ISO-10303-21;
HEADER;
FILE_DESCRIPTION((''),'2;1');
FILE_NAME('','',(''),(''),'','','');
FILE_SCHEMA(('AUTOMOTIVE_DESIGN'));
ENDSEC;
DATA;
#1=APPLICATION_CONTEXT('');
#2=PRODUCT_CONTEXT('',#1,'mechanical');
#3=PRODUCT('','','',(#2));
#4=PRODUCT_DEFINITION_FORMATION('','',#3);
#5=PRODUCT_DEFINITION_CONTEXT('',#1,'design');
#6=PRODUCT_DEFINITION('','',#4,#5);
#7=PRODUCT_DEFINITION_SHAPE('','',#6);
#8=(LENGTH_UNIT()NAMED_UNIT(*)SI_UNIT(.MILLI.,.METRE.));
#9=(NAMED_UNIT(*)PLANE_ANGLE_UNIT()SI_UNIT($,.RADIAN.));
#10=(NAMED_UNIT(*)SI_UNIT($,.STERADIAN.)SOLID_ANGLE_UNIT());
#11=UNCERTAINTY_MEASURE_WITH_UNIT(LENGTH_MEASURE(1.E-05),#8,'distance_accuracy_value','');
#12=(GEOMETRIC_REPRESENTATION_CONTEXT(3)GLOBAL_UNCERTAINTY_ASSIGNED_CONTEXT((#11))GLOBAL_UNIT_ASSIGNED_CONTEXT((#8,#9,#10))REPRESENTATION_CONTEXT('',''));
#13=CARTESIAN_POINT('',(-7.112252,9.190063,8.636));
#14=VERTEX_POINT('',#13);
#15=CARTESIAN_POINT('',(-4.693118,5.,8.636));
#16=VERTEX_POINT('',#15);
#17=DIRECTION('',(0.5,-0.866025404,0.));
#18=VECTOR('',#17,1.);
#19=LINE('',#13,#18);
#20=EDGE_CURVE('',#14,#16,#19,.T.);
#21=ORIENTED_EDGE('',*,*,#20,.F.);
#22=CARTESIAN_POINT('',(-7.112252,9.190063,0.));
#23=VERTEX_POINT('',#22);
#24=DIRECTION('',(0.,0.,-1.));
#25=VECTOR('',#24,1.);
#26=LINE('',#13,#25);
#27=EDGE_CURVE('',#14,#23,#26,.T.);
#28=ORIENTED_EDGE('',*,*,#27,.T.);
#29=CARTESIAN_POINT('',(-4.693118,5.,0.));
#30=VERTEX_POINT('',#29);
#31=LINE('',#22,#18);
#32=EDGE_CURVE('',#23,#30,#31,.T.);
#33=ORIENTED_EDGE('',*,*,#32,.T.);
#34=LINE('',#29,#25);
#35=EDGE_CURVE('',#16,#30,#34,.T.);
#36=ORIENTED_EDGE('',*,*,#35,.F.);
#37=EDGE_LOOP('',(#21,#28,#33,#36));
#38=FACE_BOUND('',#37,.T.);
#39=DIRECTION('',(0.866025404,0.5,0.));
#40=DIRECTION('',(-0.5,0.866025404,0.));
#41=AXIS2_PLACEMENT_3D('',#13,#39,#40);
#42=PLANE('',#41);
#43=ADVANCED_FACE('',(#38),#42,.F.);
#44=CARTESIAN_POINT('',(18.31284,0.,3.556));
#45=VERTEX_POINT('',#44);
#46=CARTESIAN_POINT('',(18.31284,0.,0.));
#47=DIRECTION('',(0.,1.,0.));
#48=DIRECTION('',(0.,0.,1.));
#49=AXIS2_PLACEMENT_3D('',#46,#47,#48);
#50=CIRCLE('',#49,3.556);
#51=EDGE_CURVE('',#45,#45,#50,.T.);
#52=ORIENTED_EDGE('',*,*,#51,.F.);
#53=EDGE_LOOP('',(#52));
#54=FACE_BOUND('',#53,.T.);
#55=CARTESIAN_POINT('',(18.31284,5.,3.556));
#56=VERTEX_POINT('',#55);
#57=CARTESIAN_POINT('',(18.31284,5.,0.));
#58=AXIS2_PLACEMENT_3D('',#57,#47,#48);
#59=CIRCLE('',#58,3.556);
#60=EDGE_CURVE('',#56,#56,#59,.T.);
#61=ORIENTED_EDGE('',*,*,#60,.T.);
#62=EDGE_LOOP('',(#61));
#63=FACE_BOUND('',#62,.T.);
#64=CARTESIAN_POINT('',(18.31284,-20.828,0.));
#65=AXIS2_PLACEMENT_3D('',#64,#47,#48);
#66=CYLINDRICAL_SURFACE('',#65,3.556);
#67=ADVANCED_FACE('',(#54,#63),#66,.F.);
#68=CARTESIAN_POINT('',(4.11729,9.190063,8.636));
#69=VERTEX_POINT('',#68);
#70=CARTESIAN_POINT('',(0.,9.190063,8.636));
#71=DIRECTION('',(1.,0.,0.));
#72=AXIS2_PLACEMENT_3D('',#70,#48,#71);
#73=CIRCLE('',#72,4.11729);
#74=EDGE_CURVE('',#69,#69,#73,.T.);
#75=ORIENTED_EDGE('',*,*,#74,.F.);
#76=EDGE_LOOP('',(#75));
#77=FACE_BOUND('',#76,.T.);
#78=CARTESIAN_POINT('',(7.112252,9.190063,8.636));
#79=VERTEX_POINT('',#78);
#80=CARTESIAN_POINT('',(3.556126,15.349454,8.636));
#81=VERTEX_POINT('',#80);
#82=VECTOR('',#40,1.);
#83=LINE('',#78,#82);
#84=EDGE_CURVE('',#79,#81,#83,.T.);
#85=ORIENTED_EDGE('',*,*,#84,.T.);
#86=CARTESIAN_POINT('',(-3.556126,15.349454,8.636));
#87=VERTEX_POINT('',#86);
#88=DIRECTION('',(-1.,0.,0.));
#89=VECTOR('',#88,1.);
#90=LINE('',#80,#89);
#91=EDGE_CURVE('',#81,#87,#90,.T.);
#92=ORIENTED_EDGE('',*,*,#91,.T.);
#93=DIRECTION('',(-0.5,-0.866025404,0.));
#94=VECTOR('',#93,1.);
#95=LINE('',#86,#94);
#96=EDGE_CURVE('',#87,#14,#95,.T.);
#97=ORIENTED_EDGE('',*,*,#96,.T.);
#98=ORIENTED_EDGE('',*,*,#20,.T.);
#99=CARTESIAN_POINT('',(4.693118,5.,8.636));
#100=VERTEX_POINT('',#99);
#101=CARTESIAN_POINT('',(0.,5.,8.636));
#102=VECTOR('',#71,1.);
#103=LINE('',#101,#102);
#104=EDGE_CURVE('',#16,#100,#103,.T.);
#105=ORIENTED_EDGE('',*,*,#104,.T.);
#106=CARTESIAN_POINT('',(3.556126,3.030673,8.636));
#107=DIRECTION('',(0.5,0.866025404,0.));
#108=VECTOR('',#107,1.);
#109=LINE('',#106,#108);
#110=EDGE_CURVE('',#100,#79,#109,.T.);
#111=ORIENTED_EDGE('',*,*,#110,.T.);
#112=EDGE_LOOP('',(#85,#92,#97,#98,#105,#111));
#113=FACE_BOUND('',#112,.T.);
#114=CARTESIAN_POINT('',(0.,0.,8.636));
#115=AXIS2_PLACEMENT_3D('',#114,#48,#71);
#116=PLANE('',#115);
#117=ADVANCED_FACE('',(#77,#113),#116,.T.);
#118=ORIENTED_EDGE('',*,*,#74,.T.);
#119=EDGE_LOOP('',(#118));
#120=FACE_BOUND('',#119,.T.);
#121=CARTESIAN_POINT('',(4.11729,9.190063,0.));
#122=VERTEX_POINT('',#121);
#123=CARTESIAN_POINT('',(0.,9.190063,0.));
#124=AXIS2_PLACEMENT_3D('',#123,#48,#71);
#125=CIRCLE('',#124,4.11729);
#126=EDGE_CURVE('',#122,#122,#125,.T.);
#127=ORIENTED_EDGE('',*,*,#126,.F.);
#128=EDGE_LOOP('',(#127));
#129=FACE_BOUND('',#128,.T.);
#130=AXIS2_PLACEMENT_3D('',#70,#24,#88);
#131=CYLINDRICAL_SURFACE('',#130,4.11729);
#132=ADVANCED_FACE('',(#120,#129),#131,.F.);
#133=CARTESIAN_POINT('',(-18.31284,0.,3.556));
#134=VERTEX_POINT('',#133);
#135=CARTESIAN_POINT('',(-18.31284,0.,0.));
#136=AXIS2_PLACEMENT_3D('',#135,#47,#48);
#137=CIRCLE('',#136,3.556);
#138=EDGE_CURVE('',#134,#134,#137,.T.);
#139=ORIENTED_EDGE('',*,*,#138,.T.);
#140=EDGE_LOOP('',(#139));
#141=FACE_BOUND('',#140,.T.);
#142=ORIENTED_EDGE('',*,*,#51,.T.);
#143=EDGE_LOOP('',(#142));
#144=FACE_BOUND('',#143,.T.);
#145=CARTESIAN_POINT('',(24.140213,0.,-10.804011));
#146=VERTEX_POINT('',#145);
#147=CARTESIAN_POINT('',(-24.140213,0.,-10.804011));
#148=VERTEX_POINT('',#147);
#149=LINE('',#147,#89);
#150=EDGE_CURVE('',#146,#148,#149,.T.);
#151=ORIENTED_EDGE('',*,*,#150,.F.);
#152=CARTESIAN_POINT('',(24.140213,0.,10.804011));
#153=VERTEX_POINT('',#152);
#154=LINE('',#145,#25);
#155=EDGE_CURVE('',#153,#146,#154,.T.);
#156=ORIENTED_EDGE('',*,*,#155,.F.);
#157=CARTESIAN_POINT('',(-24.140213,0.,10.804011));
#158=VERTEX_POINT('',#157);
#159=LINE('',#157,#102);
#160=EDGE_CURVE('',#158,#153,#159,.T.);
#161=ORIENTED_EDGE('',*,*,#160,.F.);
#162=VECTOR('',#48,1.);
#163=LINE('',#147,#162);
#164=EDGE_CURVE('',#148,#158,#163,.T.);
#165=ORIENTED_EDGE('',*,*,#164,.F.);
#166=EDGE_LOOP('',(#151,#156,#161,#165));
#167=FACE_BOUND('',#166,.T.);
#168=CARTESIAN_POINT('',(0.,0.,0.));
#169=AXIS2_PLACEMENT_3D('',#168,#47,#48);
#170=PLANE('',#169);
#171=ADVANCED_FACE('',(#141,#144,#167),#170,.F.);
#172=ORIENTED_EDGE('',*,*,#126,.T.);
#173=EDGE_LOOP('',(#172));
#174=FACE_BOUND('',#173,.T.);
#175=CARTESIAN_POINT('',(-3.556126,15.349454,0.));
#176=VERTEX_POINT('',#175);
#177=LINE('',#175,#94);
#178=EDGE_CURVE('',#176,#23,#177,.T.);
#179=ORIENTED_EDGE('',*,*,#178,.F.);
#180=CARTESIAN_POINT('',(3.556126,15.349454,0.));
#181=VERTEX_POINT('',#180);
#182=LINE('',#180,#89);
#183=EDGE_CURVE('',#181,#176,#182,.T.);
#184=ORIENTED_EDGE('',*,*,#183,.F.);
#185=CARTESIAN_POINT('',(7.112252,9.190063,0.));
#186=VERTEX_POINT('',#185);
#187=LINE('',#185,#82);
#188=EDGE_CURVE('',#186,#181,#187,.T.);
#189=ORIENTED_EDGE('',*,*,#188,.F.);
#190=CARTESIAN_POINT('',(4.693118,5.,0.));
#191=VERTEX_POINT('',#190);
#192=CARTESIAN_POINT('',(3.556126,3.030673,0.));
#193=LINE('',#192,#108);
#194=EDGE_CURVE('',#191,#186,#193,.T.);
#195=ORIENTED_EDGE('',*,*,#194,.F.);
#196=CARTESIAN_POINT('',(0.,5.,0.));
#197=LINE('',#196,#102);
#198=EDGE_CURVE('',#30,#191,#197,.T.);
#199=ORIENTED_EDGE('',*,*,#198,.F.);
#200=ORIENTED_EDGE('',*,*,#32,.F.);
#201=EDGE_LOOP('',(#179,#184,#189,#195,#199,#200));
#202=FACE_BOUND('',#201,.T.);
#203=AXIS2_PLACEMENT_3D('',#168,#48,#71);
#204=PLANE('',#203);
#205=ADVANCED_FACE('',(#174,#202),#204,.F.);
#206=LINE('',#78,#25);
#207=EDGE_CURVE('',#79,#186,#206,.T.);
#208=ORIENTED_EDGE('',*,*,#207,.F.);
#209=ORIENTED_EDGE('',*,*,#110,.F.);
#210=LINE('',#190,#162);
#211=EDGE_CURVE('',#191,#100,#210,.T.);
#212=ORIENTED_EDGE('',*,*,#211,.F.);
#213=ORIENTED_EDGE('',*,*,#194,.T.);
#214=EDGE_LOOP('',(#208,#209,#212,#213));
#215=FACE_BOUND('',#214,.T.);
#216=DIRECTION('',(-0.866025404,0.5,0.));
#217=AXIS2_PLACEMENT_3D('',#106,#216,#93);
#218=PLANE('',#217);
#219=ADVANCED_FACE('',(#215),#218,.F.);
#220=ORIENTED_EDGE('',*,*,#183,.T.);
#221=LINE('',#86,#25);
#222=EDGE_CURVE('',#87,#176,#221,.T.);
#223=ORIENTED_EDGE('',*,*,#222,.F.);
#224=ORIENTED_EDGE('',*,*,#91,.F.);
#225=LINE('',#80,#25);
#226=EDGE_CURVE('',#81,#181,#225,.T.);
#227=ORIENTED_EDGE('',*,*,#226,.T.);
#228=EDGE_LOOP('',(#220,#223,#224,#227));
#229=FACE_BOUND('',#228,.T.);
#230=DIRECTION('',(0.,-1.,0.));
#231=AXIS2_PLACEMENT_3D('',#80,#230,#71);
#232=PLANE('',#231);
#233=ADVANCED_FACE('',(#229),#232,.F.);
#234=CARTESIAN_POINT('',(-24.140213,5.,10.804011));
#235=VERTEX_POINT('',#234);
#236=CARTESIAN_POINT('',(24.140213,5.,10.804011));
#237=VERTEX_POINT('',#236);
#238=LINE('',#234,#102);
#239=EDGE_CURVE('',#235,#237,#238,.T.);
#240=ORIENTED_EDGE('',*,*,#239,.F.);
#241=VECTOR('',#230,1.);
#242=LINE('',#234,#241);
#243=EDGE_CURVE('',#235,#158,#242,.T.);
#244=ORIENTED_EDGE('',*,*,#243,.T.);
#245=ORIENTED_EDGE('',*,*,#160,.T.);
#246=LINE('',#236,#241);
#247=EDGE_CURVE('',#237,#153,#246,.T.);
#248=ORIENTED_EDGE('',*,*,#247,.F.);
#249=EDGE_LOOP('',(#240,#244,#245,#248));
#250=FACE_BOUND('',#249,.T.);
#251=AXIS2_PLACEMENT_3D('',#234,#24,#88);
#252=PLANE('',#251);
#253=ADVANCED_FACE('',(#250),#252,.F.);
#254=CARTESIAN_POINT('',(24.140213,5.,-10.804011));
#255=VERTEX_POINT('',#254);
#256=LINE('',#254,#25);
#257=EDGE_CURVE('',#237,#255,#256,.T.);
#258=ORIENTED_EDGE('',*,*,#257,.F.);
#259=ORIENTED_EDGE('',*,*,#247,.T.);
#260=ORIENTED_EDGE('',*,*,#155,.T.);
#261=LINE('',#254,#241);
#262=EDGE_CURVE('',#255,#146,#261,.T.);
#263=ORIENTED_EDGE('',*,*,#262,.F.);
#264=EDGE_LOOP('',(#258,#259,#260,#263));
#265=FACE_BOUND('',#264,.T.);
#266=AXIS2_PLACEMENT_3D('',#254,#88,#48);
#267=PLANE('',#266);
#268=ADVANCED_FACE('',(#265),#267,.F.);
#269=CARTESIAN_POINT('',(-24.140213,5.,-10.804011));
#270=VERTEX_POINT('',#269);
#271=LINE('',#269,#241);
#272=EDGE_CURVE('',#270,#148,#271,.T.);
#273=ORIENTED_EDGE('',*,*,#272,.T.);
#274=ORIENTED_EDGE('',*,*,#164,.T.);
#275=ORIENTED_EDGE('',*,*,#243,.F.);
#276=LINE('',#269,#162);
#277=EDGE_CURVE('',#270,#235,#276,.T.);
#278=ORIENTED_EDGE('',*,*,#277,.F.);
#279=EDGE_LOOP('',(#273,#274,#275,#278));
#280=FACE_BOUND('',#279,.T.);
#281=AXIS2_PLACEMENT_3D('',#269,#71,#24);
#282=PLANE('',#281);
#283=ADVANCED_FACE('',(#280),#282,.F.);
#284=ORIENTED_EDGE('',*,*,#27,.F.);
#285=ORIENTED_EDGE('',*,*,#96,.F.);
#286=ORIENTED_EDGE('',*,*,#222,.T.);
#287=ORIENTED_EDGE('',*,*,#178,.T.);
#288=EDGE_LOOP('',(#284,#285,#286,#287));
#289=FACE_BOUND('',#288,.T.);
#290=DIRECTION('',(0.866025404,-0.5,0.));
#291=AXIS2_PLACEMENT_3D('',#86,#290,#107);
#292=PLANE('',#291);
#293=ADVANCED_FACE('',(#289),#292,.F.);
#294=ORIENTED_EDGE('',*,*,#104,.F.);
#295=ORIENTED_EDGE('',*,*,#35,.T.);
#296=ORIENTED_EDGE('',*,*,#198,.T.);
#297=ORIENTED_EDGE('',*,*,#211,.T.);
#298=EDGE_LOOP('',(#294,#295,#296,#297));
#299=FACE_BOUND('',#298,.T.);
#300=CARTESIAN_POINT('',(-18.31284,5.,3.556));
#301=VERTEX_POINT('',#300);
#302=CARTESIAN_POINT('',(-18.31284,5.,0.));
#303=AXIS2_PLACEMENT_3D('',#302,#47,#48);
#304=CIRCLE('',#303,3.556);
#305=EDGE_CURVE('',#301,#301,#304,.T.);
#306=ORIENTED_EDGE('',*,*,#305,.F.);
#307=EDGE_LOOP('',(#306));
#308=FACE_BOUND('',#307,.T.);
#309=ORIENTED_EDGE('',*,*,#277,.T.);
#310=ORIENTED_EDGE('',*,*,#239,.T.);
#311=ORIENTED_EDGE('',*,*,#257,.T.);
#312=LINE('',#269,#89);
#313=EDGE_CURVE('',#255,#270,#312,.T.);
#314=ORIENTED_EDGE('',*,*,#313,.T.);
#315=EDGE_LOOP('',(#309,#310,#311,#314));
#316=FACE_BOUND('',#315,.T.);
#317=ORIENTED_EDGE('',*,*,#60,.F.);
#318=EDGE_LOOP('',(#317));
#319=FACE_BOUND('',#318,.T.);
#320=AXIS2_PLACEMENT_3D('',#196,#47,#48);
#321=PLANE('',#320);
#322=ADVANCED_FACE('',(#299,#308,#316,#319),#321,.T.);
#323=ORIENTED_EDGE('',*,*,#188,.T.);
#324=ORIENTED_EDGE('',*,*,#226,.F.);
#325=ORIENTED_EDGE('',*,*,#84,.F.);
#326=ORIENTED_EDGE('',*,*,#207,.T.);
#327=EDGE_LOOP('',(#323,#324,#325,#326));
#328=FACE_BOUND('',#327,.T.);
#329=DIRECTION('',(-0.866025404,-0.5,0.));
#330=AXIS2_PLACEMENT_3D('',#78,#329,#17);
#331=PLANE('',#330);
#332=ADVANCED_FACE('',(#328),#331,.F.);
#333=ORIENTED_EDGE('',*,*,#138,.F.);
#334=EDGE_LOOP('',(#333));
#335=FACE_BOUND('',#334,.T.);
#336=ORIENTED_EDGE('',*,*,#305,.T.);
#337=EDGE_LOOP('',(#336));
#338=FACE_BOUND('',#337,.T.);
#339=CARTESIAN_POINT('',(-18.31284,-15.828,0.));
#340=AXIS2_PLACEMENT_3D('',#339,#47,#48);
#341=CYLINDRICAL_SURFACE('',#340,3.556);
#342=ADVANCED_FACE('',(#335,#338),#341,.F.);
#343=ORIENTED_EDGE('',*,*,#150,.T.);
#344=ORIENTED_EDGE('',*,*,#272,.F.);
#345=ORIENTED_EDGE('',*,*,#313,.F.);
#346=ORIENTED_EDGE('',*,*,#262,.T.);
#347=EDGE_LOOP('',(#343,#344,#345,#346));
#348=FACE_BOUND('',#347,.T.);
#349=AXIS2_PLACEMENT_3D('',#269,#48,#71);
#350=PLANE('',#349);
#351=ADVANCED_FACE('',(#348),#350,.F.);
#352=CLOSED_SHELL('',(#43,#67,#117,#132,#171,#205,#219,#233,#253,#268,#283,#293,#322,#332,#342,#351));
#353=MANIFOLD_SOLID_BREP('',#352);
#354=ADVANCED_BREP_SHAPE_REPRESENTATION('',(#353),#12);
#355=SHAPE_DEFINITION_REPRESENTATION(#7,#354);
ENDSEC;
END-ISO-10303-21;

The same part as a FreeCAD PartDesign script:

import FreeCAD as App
import Part
import Sketcher
from FreeCAD import Vector
Q = App.Units.Quantity

doc = App.newDocument("Part")
body = doc.addObject("PartDesign::Body", "Body")

sketch1 = body.newObject("Sketcher::SketchObject", "Sketch")
sketch1.AttachmentSupport = (doc.getObject("XZ_Plane"), [""])
sketch1.MapMode = "FlatFace"
sketch1.addGeometry(Part.LineSegment(Vector(-24, -11, 0), Vector(-24, 11, 0)), False)
sketch1.addGeometry(Part.LineSegment(Vector(-24, 11, 0), Vector(24, 11, 0)), False)
sketch1.addGeometry(Part.LineSegment(Vector(24, 11, 0), Vector(24, -11, 0)), False)
sketch1.addGeometry(Part.LineSegment(Vector(24, -11, 0), Vector(-24, -11, 0)), False)
sketch1.addConstraint(Sketcher.Constraint("Coincident", 0, 2, 1, 1))
sketch1.addConstraint(Sketcher.Constraint("Coincident", 1, 2, 2, 1))
sketch1.addConstraint(Sketcher.Constraint("Coincident", 2, 2, 3, 1))
sketch1.addConstraint(Sketcher.Constraint("Coincident", 3, 2, 0, 1))
sketch1.addConstraint(Sketcher.Constraint("Vertical", 0))
sketch1.addConstraint(Sketcher.Constraint("Horizontal", 1))
sketch1.addConstraint(Sketcher.Constraint("Vertical", 2))
sketch1.addConstraint(Sketcher.Constraint("Horizontal", 3))
sketch1.addConstraint(Sketcher.Constraint("Symmetric", 0, 2, 2, 2, -1, 1))
sketch1.addConstraint(Sketcher.Constraint("DistanceX", 1, 1, 1, 2, 48.280426))
sketch1.addConstraint(Sketcher.Constraint("DistanceY", 0, 1, 0, 2, 21.608023))
pad1 = body.newObject("PartDesign::Pad", "Pad")
pad1.Profile = sketch1
pad1.Length = 5
pad1.Reversed = True

sketch2 = body.newObject("Sketcher::SketchObject", "Sketch001")
sketch2.AttachmentSupport = (doc.getObject("XZ_Plane"), [""])
sketch2.MapMode = "FlatFace"
sketch2.addGeometry(Part.Circle(Vector(18.3, 0, 0), Vector(0, 0, 1), 3), False)
sketch2.addGeometry(Part.Circle(Vector(-18.3, 0, 0), Vector(0, 0, 1), 3), False)
sketch2.addConstraint(Sketcher.Constraint("Equal", 0, 1))
sketch2.addConstraint(Sketcher.Constraint("Symmetric", 0, 3, 1, 3, -1, 1))
sketch2.addConstraint(Sketcher.Constraint("PointOnObject", 0, 3, -1))
sketch2.addConstraint(Sketcher.Constraint("Diameter", 0, 5.948306))
sketch2.addConstraint(Sketcher.Constraint("DistanceX", -1, 1, 0, 3, 18.31284))
pocket1 = body.newObject("PartDesign::Pocket", "Pocket")
pocket1.Profile = sketch2
pocket1.Type = "ThroughAll"
pocket1.Midplane = True

sketch3 = body.newObject("Sketcher::SketchObject", "Sketch002")
sketch3.AttachmentSupport = (doc.getObject("XZ_Plane"), [""])
sketch3.MapMode = "FlatFace"
sketch3.addGeometry(Part.Circle(Vector(18.3, 0, 0), Vector(0, 0, 1), 3.6), False)
sketch3.addConstraint(Sketcher.Constraint("PointOnObject", 0, 3, -1))
sketch3.addConstraint(Sketcher.Constraint("Diameter", 0, Q("0.28 in")))
sketch3.addConstraint(Sketcher.Constraint("DistanceX", -1, 1, 0, 3, 18.31284))
pocket2 = body.newObject("PartDesign::Pocket", "Pocket001")
pocket2.Profile = sketch3
pocket2.Type = "ThroughAll"
pocket2.Midplane = True

sketch4 = body.newObject("Sketcher::SketchObject", "Sketch003")
sketch4.AttachmentSupport = (doc.getObject("XZ_Plane"), [""])
sketch4.MapMode = "FlatFace"
sketch4.AttachmentOffset = App.Placement(Vector(0, 0, -5), App.Rotation())
sketch4.addGeometry(Part.Circle(Vector(-18.3, 0, 0), Vector(0, 0, 1), 3.6), False)
sketch4.addConstraint(Sketcher.Constraint("PointOnObject", 0, 3, -1))
sketch4.addConstraint(Sketcher.Constraint("Diameter", 0, Q("0.28 in")))
sketch4.addConstraint(Sketcher.Constraint("DistanceX", 0, 3, -1, 1, 18.31284))
pocket3 = body.newObject("PartDesign::Pocket", "Pocket002")
pocket3.Profile = sketch4
pocket3.Type = "ThroughAll"
pocket3.Midplane = True

sketch5 = body.newObject("Sketcher::SketchObject", "Sketch004")
sketch5.AttachmentSupport = (doc.getObject("XY_Plane"), [""])
sketch5.MapMode = "FlatFace"
sketch5.addGeometry(Part.LineSegment(Vector(7.1, 9.2, 0), Vector(3.6, 15.3, 0)), False)
sketch5.addGeometry(Part.LineSegment(Vector(3.6, 15.3, 0), Vector(-3.6, 15.3, 0)), False)
sketch5.addGeometry(Part.LineSegment(Vector(-3.6, 15.3, 0), Vector(-7.1, 9.2, 0)), False)
sketch5.addGeometry(Part.LineSegment(Vector(-7.1, 9.2, 0), Vector(-3.6, 3, 0)), False)
sketch5.addGeometry(Part.LineSegment(Vector(-3.6, 3, 0), Vector(3.6, 3, 0)), False)
sketch5.addGeometry(Part.LineSegment(Vector(3.6, 3, 0), Vector(7.1, 9.2, 0)), False)
sketch5.addGeometry(Part.Circle(Vector(0, 9.2, 0), Vector(0, 0, 1), 4.1), False)
sketch5.addConstraint(Sketcher.Constraint("Coincident", 0, 2, 1, 1))
sketch5.addConstraint(Sketcher.Constraint("Coincident", 1, 2, 2, 1))
sketch5.addConstraint(Sketcher.Constraint("Coincident", 2, 2, 3, 1))
sketch5.addConstraint(Sketcher.Constraint("Coincident", 3, 2, 4, 1))
sketch5.addConstraint(Sketcher.Constraint("Coincident", 4, 2, 5, 1))
sketch5.addConstraint(Sketcher.Constraint("Coincident", 5, 2, 0, 1))
sketch5.addConstraint(Sketcher.Constraint("Horizontal", 1))
sketch5.addConstraint(Sketcher.Constraint("Horizontal", 4))
sketch5.addConstraint(Sketcher.Constraint("Symmetric", 2, 2, 5, 2, -2))
sketch5.addConstraint(Sketcher.Constraint("PointOnObject", 6, 3, -2))
sketch5.addConstraint(Sketcher.Constraint("Parallel", 0, 3))
sketch5.addConstraint(Sketcher.Constraint("Parallel", 2, 5))
sketch5.addConstraint(Sketcher.Constraint("Horizontal", 6, 3, 2, 2))
sketch5.addConstraint(Sketcher.Constraint("Vertical", 1, 2, 3, 2))
sketch5.addConstraint(Sketcher.Constraint("Vertical", 0, 2, 4, 2))
sketch5.addConstraint(Sketcher.Constraint("Angle", 0, Q("120 deg")))
sketch5.addConstraint(Sketcher.Constraint("Diameter", 6, 8.23458))
sketch5.addConstraint(Sketcher.Constraint("DistanceX", 1, 2, 1, 1, 7.112252))
sketch5.addConstraint(Sketcher.Constraint("Distance", 0, 7.112252))
sketch5.addConstraint(Sketcher.Constraint("DistanceY", -1, 1, 6, 3, 9.190063))
pad2 = body.newObject("PartDesign::Pad", "Pad001")
pad2.Profile = sketch5
pad2.Length = Q("0.34 in")

doc.recompute()
